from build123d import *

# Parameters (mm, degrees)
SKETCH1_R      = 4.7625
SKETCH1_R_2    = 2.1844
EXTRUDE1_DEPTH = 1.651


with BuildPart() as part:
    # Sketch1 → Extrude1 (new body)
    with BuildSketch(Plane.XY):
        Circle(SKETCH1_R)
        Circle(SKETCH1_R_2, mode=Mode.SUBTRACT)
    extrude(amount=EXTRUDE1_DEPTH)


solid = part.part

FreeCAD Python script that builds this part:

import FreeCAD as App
import Part
import Sketcher
Q = App.Units.Quantity

doc = App.newDocument("Part")
body = doc.addObject("PartDesign::Body", "Body")

sketch1 = body.newObject("Sketcher::SketchObject", "Sketch")
sketch1.AttachmentSupport = (doc.getObject("XY_Plane"), [""])
sketch1.MapMode = "FlatFace"
sketch1.addGeometry([
    Part.Circle(App.Vector(0, 0, 0), App.Vector(0, 0, 1), 4.8),
    Part.Circle(App.Vector(0, 0, 0), App.Vector(0, 0, 1), 2.2),
], False)
sketch1.addConstraint([
    Sketcher.Constraint("Coincident", 0, 3, -1, 1),
    Sketcher.Constraint("Coincident", 1, 3, -1, 1),
    Sketcher.Constraint("Diameter", 0, Q("0.375 in")),
    Sketcher.Constraint("Diameter", 1, Q("0.172 in")),
])
pad1 = body.newObject("PartDesign::Pad", "Pad")
pad1.Profile = sketch1
pad1.Length = Q("0.065 in")

doc.recompute()
